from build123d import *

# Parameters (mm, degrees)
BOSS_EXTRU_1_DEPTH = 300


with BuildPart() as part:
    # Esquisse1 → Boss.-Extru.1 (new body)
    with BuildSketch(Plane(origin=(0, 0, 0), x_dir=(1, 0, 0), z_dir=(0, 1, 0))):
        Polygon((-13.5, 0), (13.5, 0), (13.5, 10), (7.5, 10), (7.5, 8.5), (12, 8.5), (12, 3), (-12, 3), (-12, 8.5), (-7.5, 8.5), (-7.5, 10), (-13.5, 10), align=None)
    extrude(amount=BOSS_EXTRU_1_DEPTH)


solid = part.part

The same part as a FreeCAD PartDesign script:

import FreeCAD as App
import Part
import Sketcher
from FreeCAD import Vector
Q = App.Units.Quantity

doc = App.newDocument("Part")
body = doc.addObject("PartDesign::Body", "Body")

sketch1 = doc.addObject("Sketcher::SketchObject", "Sketch")
body.addObject(sketch1)
sketch1.AttachmentSupport = (doc.XZ_Plane, [""])
sketch1.MapMode = "FlatFace"
sketch1.addGeometry([
    Part.LineSegment(Vector(-13.5, 0, 0), Vector(13.5, 0, 0)),
    Part.LineSegment(Vector(13.5, 0, 0), Vector(13.5, -10, 0)),
    Part.LineSegment(Vector(13.5, -10, 0), Vector(7.5, -10, 0)),
    Part.LineSegment(Vector(7.5, -10, 0), Vector(7.5, -8.5, 0)),
    Part.LineSegment(Vector(7.5, -8.5, 0), Vector(12, -8.5, 0)),
    Part.LineSegment(Vector(12, -8.5, 0), Vector(12, -3, 0)),
    Part.LineSegment(Vector(12, -3, 0), Vector(-12, -3, 0)),
    Part.LineSegment(Vector(-12, -3, 0), Vector(-12, -8.5, 0)),
    Part.LineSegment(Vector(-12, -8.5, 0), Vector(-7.5, -8.5, 0)),
    Part.LineSegment(Vector(-7.5, -8.5, 0), Vector(-7.5, -10, 0)),
    Part.LineSegment(Vector(-7.5, -10, 0), Vector(-13.5, -10, 0)),
    Part.LineSegment(Vector(-13.5, -10, 0), Vector(-13.5, 0, 0)),
], False)
sketch1.addConstraint([
    Sketcher.Constraint("Coincident", 0, 2, 1, 1),
    Sketcher.Constraint("Coincident", 1, 2, 2, 1),
    Sketcher.Constraint("Coincident", 2, 2, 3, 1),
    Sketcher.Constraint("Coincident", 3, 2, 4, 1),
    Sketcher.Constraint("Coincident", 4, 2, 5, 1),
    Sketcher.Constraint("Coincident", 5, 2, 6, 1),
    Sketcher.Constraint("Coincident", 6, 2, 7, 1),
    Sketcher.Constraint("Coincident", 7, 2, 8, 1),
    Sketcher.Constraint("Coincident", 8, 2, 9, 1),
    Sketcher.Constraint("Coincident", 9, 2, 10, 1),
    Sketcher.Constraint("Coincident", 10, 2, 11, 1),
    Sketcher.Constraint("Coincident", 11, 2, 0, 1),
    Sketcher.Constraint("Horizontal", 0),
    Sketcher.Constraint("Vertical", 1),
    Sketcher.Constraint("Horizontal", 2),
    Sketcher.Constraint("Vertical", 3),
    Sketcher.Constraint("Horizontal", 4),
    Sketcher.Constraint("Vertical", 5),
    Sketcher.Constraint("Horizontal", 6),
    Sketcher.Constraint("Vertical", 7),
    Sketcher.Constraint("Horizontal", 8),
    Sketcher.Constraint("Vertical", 9),
    Sketcher.Constraint("Horizontal", 10),
    Sketcher.Constraint("Vertical", 11),
    Sketcher.Constraint("Symmetric", 0, 2, 11, 2, -1, 1),
    Sketcher.Constraint("Symmetric", 4, 2, 7, 2, -2),
    Sketcher.Constraint("Symmetric", 2, 2, 9, 2, -2),
    Sketcher.Constraint("DistanceX", 0, 1, 0, 2, Q("27 mm")),
    Sketcher.Constraint("DistanceX", 2, 2, 2, 1, Q("6 mm")),
    Sketcher.Constraint("DistanceX", 6, 2, 6, 1, Q("24 mm")),
    Sketcher.Constraint("DistanceY", 1, 2, 1, 1, Q("10 mm")),
    Sketcher.Constraint("DistanceY", 3, 1, 3, 2, Q("1.5 mm")),
    Sketcher.Constraint("DistanceY", 5, 1, 5, 2, Q("5.5 mm")),
])
pad1 = doc.addObject("PartDesign::Pad", "Pad")
body.addObject(pad1)
pad1.Profile = sketch1
pad1.Length = 300
pad1.Reversed = True

doc.recompute()
